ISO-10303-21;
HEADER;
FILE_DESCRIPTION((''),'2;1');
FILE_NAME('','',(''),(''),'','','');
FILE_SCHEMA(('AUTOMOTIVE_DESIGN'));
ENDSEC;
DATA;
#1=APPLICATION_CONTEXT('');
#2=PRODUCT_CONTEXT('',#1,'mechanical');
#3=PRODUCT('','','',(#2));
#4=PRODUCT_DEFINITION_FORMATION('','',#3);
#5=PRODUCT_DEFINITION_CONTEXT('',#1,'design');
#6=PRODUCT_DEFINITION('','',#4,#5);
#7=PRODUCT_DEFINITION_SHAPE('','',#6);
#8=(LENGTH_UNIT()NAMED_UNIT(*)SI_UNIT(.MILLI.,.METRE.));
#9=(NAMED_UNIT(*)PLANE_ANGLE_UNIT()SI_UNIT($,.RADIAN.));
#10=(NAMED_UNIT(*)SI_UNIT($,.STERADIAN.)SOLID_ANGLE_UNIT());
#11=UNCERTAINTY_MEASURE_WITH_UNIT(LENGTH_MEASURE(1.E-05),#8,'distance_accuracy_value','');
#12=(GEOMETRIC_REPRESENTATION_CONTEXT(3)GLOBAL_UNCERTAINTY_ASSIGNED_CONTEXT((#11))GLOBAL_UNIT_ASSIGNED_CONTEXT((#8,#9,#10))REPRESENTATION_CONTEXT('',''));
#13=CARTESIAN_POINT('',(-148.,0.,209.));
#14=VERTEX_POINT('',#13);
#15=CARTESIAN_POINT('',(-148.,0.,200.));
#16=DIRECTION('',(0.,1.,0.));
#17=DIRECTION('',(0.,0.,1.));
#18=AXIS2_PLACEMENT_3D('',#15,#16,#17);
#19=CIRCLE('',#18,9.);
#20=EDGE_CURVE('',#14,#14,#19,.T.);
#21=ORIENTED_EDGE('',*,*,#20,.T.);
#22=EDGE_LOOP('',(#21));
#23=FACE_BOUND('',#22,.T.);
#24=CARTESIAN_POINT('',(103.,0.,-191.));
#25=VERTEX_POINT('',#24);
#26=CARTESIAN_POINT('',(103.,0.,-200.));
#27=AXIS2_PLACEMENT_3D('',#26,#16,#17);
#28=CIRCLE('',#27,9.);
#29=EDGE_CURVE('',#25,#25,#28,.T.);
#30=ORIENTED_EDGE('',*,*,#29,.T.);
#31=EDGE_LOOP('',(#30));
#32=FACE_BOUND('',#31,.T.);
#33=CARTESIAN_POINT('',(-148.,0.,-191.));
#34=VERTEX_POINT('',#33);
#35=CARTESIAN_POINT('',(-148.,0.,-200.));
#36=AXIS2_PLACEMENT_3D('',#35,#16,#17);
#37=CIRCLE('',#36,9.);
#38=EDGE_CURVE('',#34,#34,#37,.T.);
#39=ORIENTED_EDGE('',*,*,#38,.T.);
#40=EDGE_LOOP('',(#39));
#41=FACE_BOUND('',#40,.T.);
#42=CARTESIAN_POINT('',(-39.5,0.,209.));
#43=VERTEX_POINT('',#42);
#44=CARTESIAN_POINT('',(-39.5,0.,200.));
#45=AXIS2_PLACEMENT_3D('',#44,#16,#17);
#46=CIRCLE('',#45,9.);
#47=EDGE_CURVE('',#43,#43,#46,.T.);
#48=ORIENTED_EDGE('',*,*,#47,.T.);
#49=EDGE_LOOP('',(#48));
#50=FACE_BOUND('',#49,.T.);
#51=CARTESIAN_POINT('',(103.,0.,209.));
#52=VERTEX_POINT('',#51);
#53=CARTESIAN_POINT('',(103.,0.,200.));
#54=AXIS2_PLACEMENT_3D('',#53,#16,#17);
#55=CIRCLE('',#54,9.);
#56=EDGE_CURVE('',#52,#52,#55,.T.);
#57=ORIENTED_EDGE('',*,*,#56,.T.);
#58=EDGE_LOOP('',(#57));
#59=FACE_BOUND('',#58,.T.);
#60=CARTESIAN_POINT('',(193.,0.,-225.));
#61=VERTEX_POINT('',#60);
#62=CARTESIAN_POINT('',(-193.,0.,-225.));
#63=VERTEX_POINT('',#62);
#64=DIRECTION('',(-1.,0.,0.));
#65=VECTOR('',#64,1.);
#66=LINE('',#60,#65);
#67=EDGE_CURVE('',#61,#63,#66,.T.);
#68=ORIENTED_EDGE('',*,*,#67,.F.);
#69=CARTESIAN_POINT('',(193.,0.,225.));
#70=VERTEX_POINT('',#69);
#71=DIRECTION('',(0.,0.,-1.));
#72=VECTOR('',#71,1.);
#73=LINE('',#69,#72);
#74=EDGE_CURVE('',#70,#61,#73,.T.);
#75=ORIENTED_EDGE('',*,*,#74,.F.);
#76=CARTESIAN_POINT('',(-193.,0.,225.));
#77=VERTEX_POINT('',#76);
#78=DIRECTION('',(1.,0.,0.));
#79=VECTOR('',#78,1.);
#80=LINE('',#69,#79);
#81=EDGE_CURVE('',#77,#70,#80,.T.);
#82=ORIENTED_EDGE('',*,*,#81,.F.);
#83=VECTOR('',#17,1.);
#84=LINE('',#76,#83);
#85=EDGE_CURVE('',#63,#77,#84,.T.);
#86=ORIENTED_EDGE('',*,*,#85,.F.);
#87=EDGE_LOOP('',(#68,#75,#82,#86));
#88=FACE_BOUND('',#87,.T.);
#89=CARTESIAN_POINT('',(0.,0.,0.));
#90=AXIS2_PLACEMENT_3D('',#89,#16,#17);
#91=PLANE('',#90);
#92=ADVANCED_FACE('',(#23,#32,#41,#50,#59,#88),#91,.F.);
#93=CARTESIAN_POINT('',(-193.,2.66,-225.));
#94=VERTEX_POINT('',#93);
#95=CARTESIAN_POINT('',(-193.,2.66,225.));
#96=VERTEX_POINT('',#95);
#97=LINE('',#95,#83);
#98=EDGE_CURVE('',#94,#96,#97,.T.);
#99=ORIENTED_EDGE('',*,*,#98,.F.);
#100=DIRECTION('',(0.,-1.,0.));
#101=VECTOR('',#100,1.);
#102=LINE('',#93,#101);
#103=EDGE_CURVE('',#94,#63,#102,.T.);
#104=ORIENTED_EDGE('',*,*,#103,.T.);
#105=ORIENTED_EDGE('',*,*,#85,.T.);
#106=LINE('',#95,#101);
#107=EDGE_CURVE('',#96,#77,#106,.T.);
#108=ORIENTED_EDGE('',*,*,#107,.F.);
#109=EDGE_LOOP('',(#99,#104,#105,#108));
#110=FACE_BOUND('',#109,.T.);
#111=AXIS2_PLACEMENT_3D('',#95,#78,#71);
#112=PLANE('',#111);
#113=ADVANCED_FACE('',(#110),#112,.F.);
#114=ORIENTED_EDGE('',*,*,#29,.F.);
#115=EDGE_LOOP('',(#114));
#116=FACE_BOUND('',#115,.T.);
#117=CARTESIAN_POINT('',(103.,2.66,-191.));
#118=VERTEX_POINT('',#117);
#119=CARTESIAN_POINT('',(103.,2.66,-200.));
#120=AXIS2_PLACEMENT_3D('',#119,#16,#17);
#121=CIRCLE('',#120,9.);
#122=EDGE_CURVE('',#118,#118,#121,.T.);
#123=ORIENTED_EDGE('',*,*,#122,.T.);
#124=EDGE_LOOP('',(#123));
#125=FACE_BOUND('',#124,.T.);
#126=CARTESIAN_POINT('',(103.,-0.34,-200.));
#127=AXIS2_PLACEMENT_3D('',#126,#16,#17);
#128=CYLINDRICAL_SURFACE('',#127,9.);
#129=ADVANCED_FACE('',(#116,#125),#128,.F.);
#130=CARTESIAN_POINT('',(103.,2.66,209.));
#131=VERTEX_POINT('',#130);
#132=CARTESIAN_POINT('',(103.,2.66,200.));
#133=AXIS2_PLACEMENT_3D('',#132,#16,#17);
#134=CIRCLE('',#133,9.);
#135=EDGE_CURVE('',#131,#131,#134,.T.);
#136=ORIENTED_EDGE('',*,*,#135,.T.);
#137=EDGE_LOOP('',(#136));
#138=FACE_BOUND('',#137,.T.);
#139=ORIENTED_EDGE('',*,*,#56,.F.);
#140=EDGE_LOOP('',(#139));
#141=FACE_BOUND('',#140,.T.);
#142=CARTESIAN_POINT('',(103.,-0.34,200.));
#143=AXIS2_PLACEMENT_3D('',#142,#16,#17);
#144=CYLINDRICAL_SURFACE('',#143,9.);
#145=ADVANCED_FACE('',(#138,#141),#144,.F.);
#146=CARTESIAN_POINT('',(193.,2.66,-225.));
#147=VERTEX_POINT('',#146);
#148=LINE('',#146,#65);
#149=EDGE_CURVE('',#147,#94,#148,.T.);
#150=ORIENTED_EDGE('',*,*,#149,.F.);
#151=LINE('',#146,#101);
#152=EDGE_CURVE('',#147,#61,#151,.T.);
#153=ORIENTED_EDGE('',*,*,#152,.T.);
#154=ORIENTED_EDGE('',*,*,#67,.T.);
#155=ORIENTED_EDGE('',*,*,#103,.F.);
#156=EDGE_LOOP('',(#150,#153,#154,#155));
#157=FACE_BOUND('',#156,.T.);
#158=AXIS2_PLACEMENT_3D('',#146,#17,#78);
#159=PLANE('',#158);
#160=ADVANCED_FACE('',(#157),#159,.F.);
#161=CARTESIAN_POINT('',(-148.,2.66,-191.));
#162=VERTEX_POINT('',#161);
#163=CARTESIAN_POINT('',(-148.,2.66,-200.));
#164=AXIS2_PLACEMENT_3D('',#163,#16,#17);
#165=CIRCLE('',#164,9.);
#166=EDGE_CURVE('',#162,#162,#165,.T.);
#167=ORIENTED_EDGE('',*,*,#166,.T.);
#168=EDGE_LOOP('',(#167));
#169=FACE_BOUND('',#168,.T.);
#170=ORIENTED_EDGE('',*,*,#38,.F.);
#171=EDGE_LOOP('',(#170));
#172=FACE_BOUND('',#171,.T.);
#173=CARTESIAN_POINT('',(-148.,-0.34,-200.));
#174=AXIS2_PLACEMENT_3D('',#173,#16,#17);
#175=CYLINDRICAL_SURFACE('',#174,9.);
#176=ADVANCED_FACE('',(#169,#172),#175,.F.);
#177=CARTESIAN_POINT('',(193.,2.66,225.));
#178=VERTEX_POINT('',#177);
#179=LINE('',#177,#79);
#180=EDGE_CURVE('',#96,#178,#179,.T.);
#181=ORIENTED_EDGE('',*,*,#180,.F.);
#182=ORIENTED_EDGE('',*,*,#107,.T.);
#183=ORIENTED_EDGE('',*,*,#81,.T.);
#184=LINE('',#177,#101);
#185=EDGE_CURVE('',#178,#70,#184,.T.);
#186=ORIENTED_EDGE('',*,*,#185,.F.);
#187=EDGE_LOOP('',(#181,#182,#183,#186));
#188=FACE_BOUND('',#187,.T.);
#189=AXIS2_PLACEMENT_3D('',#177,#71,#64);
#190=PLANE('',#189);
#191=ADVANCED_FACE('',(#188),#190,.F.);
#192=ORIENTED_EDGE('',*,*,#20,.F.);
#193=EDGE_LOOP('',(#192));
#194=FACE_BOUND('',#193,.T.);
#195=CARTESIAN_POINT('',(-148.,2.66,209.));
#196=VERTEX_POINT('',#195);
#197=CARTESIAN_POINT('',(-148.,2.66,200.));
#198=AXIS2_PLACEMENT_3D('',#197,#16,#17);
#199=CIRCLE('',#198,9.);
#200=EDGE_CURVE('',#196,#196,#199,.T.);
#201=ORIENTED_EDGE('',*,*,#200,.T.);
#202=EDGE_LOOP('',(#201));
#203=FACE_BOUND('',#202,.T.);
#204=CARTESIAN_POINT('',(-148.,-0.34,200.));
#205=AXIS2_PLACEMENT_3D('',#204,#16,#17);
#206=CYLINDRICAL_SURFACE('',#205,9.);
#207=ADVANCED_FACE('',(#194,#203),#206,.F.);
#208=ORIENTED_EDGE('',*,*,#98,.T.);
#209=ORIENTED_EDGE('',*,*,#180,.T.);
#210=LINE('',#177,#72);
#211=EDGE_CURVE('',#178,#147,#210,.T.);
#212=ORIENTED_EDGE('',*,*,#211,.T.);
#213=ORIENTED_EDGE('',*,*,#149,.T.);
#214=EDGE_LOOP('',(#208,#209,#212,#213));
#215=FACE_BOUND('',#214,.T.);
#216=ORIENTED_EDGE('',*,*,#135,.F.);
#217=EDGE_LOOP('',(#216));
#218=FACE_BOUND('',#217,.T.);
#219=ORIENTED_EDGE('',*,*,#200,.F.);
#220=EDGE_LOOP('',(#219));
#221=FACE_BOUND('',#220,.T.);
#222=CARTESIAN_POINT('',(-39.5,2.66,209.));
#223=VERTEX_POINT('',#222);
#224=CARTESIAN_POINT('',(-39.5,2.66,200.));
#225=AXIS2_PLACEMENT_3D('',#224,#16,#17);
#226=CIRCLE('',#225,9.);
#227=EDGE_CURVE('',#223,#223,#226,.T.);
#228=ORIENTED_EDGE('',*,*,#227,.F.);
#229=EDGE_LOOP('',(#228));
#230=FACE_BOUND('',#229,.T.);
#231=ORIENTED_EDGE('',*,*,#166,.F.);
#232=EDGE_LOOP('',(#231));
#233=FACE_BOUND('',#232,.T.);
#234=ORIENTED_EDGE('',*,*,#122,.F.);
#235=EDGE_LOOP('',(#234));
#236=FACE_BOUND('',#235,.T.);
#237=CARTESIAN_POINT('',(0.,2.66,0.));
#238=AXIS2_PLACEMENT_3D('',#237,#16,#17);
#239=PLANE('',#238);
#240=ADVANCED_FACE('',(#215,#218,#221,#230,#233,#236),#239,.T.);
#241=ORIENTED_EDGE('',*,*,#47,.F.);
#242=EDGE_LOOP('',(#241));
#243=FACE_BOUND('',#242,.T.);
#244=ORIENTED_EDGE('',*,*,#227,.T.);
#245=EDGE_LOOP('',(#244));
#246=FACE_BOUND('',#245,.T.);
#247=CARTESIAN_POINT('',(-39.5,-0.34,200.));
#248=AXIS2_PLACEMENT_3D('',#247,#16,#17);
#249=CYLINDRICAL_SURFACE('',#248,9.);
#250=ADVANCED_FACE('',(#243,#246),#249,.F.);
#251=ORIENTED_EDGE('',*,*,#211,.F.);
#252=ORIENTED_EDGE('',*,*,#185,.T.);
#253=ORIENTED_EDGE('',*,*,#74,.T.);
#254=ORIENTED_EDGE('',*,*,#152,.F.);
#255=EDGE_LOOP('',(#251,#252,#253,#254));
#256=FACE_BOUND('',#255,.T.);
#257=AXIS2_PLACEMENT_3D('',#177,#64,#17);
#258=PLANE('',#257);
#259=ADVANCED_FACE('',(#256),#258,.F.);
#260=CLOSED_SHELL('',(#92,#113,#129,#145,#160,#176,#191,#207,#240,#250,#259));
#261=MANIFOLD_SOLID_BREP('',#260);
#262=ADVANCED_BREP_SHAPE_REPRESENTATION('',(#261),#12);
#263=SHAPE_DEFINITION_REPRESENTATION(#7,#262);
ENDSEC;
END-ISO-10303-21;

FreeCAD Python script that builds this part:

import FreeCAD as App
import Part
import Sketcher
Q = App.Units.Quantity


def add_polygon(sketch, points):
    """Adds a closed chain of lines whose ends are joined by coincident constraints."""
    first, n = sketch.GeometryCount, len(points)
    for a, b in zip(points, points[1:] + points[:1]):
        sketch.addGeometry(Part.LineSegment(App.Vector(*a, 0), App.Vector(*b, 0)), False)
    for i in range(n):
        sketch.addConstraint(Sketcher.Constraint("Coincident", first + i, 2, first + (i + 1) % n, 1))

doc = App.newDocument("Part")
body = doc.addObject("PartDesign::Body", "Body")

# Sketch on XZ plane
sketch1 = body.newObject("Sketcher::SketchObject", "Sketch")
sketch1.AttachmentSupport = (doc.getObject("XZ_Plane"), [""])
sketch1.MapMode = "FlatFace"
add_polygon(sketch1, [(-193, -225), (-193, 225), (193, 225), (193, -225)])  # lines 0-3
sketch1.addConstraint([
    Sketcher.Constraint("Vertical", 0),
    Sketcher.Constraint("Horizontal", 1),
    Sketcher.Constraint("Vertical", 2),
    Sketcher.Constraint("Horizontal", 3),
    Sketcher.Constraint("Symmetric", 0, 2, 2, 2, -1, 1),
    Sketcher.Constraint("DistanceX", 1, 1, 1, 2, Q("386 mm")),
    Sketcher.Constraint("DistanceY", 0, 1, 0, 2, Q("450 mm")),
])
pad1 = body.newObject("PartDesign::Pad", "Pad")
pad1.Profile = sketch1
pad1.Length = 2.66
pad1.Reversed = True

# Sketch on XZ plane
sketch2 = body.newObject("Sketcher::SketchObject", "Sketch001")
sketch2.AttachmentSupport = (doc.getObject("XZ_Plane"), [""])
sketch2.MapMode = "FlatFace"
sketch2.AttachmentOffset = App.Placement(App.Vector(0, 0, -2.66), App.Rotation())
sketch2.addGeometry([
    Part.Circle(App.Vector(-148, -200, 0), App.Vector(0, 0, 1), 9),  # 0
    Part.Circle(App.Vector(103, -200, 0), App.Vector(0, 0, 1), 9),  # 1
    Part.Circle(App.Vector(-148, 200, 0), App.Vector(0, 0, 1), 9),  # 2
    Part.Circle(App.Vector(-40, 200, 0), App.Vector(0, 0, 1), 9),  # 3
    Part.Circle(App.Vector(103, 200, 0), App.Vector(0, 0, 1), 9),  # 4
], False)
sketch2.addConstraint([
    Sketcher.Constraint("Equal", 0, 1),
    Sketcher.Constraint("Equal", 1, 2),
    Sketcher.Constraint("Equal", 2, 3),
    Sketcher.Constraint("Equal", 3, 4),
    Sketcher.Constraint("Symmetric", 0, 3, 2, 3, -1),
    Sketcher.Constraint("Symmetric", 1, 3, 4, 3, -1),
    Sketcher.Constraint("Horizontal", 0, 3, 1, 3),
    Sketcher.Constraint("Horizontal", 2, 3, 3, 3),
    Sketcher.Constraint("Diameter", 0, Q("18 mm")),
    Sketcher.Constraint("DistanceX", 0, 3, -1, 1, Q("148 mm")),
    Sketcher.Constraint("DistanceY", 0, 3, -1, 1, Q("200 mm")),
    Sketcher.Constraint("DistanceX", -1, 1, 1, 3, Q("103 mm")),
    Sketcher.Constraint("DistanceX", 3, 3, -1, 1, Q("39.5 mm")),
])
pocket1 = body.newObject("PartDesign::Pocket", "Pocket")
pocket1.Profile = sketch2
pocket1.Length = 3
pocket1.Reversed = True

doc.recompute()
